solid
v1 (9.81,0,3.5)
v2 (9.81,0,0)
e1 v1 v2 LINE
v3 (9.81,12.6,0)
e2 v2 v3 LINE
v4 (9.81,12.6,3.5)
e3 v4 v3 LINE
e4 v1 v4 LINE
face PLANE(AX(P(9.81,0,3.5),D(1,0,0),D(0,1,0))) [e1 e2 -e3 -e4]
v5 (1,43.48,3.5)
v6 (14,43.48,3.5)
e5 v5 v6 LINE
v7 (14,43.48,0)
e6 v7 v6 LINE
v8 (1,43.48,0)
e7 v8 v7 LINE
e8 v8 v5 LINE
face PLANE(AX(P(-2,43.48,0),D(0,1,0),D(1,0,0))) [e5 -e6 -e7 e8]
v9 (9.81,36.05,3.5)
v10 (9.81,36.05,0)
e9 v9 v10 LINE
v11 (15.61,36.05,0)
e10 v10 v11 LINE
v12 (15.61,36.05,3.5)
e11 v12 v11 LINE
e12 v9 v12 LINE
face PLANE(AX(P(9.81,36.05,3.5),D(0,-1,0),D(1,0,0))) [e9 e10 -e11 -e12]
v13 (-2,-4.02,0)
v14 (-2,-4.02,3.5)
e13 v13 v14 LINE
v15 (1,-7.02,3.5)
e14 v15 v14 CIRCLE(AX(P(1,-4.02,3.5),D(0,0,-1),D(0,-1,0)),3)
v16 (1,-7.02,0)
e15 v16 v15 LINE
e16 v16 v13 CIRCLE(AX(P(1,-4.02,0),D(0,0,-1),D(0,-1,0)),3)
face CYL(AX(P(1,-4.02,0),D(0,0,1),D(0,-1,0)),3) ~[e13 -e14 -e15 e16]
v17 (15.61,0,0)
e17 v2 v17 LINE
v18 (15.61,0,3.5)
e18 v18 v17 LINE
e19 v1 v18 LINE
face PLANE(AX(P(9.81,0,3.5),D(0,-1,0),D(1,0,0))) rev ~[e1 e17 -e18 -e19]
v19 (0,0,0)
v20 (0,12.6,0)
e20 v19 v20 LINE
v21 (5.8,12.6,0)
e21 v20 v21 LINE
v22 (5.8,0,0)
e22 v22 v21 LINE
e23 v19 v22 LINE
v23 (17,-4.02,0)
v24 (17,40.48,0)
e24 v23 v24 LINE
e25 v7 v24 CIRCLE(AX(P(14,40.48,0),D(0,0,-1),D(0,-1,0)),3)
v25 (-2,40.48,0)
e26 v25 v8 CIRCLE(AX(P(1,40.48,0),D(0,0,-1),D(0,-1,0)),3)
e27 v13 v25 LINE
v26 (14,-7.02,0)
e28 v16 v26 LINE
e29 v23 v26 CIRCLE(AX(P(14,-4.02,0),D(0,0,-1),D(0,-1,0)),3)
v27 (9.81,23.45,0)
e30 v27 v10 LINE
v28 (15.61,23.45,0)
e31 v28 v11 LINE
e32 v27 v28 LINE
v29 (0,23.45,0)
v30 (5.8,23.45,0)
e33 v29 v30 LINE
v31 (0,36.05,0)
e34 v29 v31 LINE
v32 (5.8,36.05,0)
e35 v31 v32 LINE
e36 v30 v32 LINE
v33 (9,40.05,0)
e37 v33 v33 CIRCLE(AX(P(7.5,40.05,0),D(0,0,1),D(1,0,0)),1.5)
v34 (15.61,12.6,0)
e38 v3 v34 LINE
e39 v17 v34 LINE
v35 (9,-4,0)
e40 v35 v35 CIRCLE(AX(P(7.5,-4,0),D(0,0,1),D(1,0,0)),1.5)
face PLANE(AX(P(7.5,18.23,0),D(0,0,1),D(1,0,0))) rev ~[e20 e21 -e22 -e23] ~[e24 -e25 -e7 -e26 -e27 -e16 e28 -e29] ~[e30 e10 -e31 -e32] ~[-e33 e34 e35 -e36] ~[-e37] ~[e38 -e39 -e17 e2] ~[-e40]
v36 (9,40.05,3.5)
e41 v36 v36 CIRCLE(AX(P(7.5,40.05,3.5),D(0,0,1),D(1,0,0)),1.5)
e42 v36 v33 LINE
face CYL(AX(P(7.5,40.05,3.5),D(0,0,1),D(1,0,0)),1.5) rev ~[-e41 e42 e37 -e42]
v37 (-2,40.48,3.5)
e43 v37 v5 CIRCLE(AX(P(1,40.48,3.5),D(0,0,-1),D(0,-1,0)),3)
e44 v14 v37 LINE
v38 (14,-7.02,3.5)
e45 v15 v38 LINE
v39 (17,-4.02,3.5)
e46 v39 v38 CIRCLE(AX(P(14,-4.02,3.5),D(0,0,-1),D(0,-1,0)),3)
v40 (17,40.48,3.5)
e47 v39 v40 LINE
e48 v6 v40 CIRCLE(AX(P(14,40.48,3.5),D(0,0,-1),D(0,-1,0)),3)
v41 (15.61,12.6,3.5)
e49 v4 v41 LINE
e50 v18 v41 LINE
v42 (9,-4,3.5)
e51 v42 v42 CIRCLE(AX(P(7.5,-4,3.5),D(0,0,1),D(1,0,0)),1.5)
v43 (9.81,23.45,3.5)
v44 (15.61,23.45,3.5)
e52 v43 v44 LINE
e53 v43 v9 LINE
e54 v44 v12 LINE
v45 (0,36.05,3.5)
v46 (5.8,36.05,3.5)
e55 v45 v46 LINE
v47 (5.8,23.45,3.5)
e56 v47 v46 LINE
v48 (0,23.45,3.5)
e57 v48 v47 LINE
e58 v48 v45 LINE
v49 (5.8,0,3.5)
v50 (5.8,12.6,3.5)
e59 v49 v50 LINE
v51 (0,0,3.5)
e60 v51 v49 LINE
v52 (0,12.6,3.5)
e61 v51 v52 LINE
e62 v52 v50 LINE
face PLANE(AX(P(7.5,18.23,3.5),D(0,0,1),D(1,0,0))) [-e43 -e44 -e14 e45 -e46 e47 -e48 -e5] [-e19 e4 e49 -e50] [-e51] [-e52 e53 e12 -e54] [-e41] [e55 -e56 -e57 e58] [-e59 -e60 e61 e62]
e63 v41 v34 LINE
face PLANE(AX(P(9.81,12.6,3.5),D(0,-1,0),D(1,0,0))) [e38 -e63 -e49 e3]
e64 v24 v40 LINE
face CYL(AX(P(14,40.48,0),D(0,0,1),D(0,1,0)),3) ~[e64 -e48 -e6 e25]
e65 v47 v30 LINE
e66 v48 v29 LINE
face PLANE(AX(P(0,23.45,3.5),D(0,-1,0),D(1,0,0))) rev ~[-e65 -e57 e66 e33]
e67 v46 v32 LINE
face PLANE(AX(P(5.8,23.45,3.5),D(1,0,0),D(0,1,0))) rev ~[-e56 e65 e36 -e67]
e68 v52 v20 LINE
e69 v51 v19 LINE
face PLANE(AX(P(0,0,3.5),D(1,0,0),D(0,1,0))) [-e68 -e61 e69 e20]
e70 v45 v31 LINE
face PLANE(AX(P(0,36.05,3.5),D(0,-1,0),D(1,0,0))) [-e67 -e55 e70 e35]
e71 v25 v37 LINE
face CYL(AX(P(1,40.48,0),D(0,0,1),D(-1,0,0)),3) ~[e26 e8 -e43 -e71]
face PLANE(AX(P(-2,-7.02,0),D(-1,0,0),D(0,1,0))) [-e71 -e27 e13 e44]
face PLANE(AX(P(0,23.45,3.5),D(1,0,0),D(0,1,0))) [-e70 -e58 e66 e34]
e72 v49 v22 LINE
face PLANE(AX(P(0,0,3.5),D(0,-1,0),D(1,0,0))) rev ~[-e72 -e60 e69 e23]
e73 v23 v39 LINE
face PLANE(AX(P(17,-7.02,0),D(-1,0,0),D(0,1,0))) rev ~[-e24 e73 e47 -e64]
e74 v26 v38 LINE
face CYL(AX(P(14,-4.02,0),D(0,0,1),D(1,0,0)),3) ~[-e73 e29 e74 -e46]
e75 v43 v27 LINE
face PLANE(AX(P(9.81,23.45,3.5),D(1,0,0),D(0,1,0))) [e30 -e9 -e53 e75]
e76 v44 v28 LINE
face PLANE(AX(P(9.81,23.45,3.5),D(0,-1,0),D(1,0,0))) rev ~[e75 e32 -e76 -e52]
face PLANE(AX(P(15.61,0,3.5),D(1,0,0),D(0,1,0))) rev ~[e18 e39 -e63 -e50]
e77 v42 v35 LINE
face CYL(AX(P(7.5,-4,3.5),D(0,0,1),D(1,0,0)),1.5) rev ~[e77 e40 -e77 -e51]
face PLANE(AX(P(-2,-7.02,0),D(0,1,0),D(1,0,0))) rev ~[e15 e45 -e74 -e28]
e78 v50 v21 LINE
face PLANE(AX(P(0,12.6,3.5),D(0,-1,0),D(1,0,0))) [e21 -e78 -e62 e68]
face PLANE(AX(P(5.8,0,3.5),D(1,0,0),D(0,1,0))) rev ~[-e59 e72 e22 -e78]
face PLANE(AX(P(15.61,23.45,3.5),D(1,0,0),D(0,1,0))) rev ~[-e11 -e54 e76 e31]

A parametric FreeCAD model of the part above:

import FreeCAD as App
import Part
import Sketcher


def edges_at(feature, points):
    """Names of the edges that pass closest to the given points."""
    edges = feature.Shape.Edges
    near = lambda p: min(range(len(edges)), key=lambda i: edges[i].distToShape(Part.Vertex(*p))[0])
    return sorted({f"Edge{near(p) + 1}" for p in points})


def add_polygon(sketch, points):
    """Adds a closed chain of lines whose ends are joined by coincident constraints."""
    first, n = sketch.GeometryCount, len(points)
    for a, b in zip(points, points[1:] + points[:1]):
        sketch.addGeometry(Part.LineSegment(App.Vector(*a, 0), App.Vector(*b, 0)), False)
    for i in range(n):
        sketch.addConstraint(Sketcher.Constraint("Coincident", first + i, 2, first + (i + 1) % n, 1))

doc = App.newDocument("Part")
params = doc.addObject("Spreadsheet::Sheet", "Params")
for row, (alias, value) in enumerate([
    ("sketch1_width", "19 mm"),
    ("sketch1_height", "50.5 mm"),
    ("pad1_length", "3.5 mm"),
    ("sketch2_diameter", "3 mm"),
    ("sketch2_width", "5.8 mm"),
    ("sketch2_height", "12.6 mm"),
    ("pocket1_length", "3.5 mm"),
    ("fillet_radius", "3 mm"),
    ("fillet2_radius", "3 mm"),
    ("fillet3_radius", "3 mm"),
    ("fillet4_radius", "3 mm"),
], start=1):
    params.set(f"A{row}", alias)
    params.set(f"B{row}", "=" + value)
    params.setAlias(f"B{row}", alias)

body = doc.addObject("PartDesign::Body", "Body")

# Sketch on XY plane
sketch1 = body.newObject("Sketcher::SketchObject", "Sketch")
sketch1.AttachmentSupport = (doc.getObject("XY_Plane"), [""])
sketch1.MapMode = "FlatFace"
add_polygon(sketch1, [(-2, 43), (-2, -7), (17, -7), (17, 43)])  # lines 0-3
sketch1.addConstraint([
    Sketcher.Constraint("Vertical", 0),
    Sketcher.Constraint("Horizontal", 1),
    Sketcher.Constraint("Vertical", 2),
    Sketcher.Constraint("Horizontal", 3),
    Sketcher.Constraint("DistanceX", 1, 1, 1, 2, 19.0),
    Sketcher.Constraint("DistanceY", 0, 2, 0, 1, 50.5),
    Sketcher.Constraint("DistanceX", 0, 2, -1, 1, 2.0),
    Sketcher.Constraint("DistanceY", 0, 2, -1, 1, 7.02),
])
sketch1.setExpression("Constraints[8]", "Params.sketch1_width")
sketch1.setExpression("Constraints[9]", "Params.sketch1_height")
pad1 = body.newObject("PartDesign::Pad", "Pad")
pad1.Profile = sketch1
pad1.setExpression("Length", "Params.pad1_length")

# Sketch on XY plane
sketch2 = body.newObject("Sketcher::SketchObject", "Sketch001")
sketch2.AttachmentSupport = (doc.getObject("XY_Plane"), [""])
sketch2.MapMode = "FlatFace"
sketch2.AttachmentOffset = App.Placement(App.Vector(0, 0, 3.5), App.Rotation())
sketch2.addGeometry(Part.Circle(App.Vector(7.5, -4, 0), App.Vector(0, 0, 1), 1.5), False)  # 0
sketch2.addGeometry(Part.Circle(App.Vector(7.5, 40, 0), App.Vector(0, 0, 1), 1.5), False)  # 1
add_polygon(sketch2, [(0, 36), (0, 23.4), (5.8, 23.4), (5.8, 36)])  # lines 2-5
add_polygon(sketch2, [(9.8, 36), (9.8, 23.4), (15.6, 23.4), (15.6, 36)])  # lines 6-9
add_polygon(sketch2, [(0, 12.6), (0, 0), (5.8, 0), (5.8, 12.6)])  # lines 10-13
add_polygon(sketch2, [(9.8, 12.6), (9.8, 0), (15.6, 0), (15.6, 12.6)])  # lines 14-17
sketch2.addConstraint([
    Sketcher.Constraint("Vertical", 2),
    Sketcher.Constraint("Horizontal", 3),
    Sketcher.Constraint("Vertical", 4),
    Sketcher.Constraint("Horizontal", 5),
    Sketcher.Constraint("Vertical", 6),
    Sketcher.Constraint("Horizontal", 7),
    Sketcher.Constraint("Vertical", 8),
    Sketcher.Constraint("Horizontal", 9),
    Sketcher.Constraint("Vertical", 10),
    Sketcher.Constraint("Horizontal", 11),
    Sketcher.Constraint("Vertical", 12),
    Sketcher.Constraint("Horizontal", 13),
    Sketcher.Constraint("Vertical", 14),
    Sketcher.Constraint("Horizontal", 15),
    Sketcher.Constraint("Vertical", 16),
    Sketcher.Constraint("Horizontal", 17),
    Sketcher.Constraint("Coincident", 10, 2, -1, 1),
    Sketcher.Constraint("Equal", 0, 1),
    Sketcher.Constraint("PointOnObject", 2, 2, -2),
    Sketcher.Constraint("PointOnObject", 14, 2, -1),
    Sketcher.Constraint("Horizontal", 3, 2, 6, 2),
    Sketcher.Constraint("Horizontal", 5, 2, 8, 2),
    Sketcher.Constraint("Horizontal", 13, 2, 16, 2),
    Sketcher.Constraint("Vertical", 0, 3, 1, 3),
    Sketcher.Constraint("Vertical", 4, 2, 11, 2),
    Sketcher.Constraint("Vertical", 9, 2, 14, 2),
    Sketcher.Constraint("Vertical", 8, 2, 15, 2),
    Sketcher.Constraint("Equal", 5, 7),
    Sketcher.Constraint("Equal", 8, 10),
    Sketcher.Constraint("Diameter", 0, 3.0),
    Sketcher.Constraint("DistanceX", 3, 1, 3, 2, 5.8),
    Sketcher.Constraint("DistanceY", 2, 2, 2, 1, 12.6),
    Sketcher.Constraint("DistanceY", 0, 3, -1, 1, 4.0),
    Sketcher.Constraint("DistanceY", 4, 2, 1, 3, 4.0),
    Sketcher.Constraint("DistanceX", -1, 1, 0, 3, 7.5),
    Sketcher.Constraint("DistanceY", -1, 1, 1, 3, 40.05),
    Sketcher.Constraint("DistanceX", -1, 1, 6, 2, 9.81),
])
sketch2.setExpression("Constraints[45]", "Params.sketch2_diameter")
sketch2.setExpression("Constraints[46]", "Params.sketch2_width")
sketch2.setExpression("Constraints[47]", "Params.sketch2_height")
pocket1 = body.newObject("PartDesign::Pocket", "Pocket")
pocket1.Profile = sketch2
pocket1.setExpression("Length", "Params.pocket1_length")
doc.recompute()

fillet = body.newObject("PartDesign::Fillet", "Fillet")
fillet.Base = (pocket1, edges_at(pocket1, [(-2, 43.48, 1.75)]))
fillet.setExpression("Radius", "Params.fillet_radius")
doc.recompute()

fillet2 = body.newObject("PartDesign::Fillet", "Fillet001")
fillet2.Base = (fillet, edges_at(fillet, [(17, 43.48, 1.75)]))
fillet2.setExpression("Radius", "Params.fillet2_radius")
doc.recompute()

fillet3 = body.newObject("PartDesign::Fillet", "Fillet002")
fillet3.Base = (fillet2, edges_at(fillet2, [(17, -7.02, 1.75)]))
fillet3.setExpression("Radius", "Params.fillet3_radius")
doc.recompute()

fillet4 = body.newObject("PartDesign::Fillet", "Fillet003")
fillet4.Base = (fillet3, edges_at(fillet3, [(-2, -7.02, 1.75)]))
fillet4.setExpression("Radius", "Params.fillet4_radius")

doc.recompute()
